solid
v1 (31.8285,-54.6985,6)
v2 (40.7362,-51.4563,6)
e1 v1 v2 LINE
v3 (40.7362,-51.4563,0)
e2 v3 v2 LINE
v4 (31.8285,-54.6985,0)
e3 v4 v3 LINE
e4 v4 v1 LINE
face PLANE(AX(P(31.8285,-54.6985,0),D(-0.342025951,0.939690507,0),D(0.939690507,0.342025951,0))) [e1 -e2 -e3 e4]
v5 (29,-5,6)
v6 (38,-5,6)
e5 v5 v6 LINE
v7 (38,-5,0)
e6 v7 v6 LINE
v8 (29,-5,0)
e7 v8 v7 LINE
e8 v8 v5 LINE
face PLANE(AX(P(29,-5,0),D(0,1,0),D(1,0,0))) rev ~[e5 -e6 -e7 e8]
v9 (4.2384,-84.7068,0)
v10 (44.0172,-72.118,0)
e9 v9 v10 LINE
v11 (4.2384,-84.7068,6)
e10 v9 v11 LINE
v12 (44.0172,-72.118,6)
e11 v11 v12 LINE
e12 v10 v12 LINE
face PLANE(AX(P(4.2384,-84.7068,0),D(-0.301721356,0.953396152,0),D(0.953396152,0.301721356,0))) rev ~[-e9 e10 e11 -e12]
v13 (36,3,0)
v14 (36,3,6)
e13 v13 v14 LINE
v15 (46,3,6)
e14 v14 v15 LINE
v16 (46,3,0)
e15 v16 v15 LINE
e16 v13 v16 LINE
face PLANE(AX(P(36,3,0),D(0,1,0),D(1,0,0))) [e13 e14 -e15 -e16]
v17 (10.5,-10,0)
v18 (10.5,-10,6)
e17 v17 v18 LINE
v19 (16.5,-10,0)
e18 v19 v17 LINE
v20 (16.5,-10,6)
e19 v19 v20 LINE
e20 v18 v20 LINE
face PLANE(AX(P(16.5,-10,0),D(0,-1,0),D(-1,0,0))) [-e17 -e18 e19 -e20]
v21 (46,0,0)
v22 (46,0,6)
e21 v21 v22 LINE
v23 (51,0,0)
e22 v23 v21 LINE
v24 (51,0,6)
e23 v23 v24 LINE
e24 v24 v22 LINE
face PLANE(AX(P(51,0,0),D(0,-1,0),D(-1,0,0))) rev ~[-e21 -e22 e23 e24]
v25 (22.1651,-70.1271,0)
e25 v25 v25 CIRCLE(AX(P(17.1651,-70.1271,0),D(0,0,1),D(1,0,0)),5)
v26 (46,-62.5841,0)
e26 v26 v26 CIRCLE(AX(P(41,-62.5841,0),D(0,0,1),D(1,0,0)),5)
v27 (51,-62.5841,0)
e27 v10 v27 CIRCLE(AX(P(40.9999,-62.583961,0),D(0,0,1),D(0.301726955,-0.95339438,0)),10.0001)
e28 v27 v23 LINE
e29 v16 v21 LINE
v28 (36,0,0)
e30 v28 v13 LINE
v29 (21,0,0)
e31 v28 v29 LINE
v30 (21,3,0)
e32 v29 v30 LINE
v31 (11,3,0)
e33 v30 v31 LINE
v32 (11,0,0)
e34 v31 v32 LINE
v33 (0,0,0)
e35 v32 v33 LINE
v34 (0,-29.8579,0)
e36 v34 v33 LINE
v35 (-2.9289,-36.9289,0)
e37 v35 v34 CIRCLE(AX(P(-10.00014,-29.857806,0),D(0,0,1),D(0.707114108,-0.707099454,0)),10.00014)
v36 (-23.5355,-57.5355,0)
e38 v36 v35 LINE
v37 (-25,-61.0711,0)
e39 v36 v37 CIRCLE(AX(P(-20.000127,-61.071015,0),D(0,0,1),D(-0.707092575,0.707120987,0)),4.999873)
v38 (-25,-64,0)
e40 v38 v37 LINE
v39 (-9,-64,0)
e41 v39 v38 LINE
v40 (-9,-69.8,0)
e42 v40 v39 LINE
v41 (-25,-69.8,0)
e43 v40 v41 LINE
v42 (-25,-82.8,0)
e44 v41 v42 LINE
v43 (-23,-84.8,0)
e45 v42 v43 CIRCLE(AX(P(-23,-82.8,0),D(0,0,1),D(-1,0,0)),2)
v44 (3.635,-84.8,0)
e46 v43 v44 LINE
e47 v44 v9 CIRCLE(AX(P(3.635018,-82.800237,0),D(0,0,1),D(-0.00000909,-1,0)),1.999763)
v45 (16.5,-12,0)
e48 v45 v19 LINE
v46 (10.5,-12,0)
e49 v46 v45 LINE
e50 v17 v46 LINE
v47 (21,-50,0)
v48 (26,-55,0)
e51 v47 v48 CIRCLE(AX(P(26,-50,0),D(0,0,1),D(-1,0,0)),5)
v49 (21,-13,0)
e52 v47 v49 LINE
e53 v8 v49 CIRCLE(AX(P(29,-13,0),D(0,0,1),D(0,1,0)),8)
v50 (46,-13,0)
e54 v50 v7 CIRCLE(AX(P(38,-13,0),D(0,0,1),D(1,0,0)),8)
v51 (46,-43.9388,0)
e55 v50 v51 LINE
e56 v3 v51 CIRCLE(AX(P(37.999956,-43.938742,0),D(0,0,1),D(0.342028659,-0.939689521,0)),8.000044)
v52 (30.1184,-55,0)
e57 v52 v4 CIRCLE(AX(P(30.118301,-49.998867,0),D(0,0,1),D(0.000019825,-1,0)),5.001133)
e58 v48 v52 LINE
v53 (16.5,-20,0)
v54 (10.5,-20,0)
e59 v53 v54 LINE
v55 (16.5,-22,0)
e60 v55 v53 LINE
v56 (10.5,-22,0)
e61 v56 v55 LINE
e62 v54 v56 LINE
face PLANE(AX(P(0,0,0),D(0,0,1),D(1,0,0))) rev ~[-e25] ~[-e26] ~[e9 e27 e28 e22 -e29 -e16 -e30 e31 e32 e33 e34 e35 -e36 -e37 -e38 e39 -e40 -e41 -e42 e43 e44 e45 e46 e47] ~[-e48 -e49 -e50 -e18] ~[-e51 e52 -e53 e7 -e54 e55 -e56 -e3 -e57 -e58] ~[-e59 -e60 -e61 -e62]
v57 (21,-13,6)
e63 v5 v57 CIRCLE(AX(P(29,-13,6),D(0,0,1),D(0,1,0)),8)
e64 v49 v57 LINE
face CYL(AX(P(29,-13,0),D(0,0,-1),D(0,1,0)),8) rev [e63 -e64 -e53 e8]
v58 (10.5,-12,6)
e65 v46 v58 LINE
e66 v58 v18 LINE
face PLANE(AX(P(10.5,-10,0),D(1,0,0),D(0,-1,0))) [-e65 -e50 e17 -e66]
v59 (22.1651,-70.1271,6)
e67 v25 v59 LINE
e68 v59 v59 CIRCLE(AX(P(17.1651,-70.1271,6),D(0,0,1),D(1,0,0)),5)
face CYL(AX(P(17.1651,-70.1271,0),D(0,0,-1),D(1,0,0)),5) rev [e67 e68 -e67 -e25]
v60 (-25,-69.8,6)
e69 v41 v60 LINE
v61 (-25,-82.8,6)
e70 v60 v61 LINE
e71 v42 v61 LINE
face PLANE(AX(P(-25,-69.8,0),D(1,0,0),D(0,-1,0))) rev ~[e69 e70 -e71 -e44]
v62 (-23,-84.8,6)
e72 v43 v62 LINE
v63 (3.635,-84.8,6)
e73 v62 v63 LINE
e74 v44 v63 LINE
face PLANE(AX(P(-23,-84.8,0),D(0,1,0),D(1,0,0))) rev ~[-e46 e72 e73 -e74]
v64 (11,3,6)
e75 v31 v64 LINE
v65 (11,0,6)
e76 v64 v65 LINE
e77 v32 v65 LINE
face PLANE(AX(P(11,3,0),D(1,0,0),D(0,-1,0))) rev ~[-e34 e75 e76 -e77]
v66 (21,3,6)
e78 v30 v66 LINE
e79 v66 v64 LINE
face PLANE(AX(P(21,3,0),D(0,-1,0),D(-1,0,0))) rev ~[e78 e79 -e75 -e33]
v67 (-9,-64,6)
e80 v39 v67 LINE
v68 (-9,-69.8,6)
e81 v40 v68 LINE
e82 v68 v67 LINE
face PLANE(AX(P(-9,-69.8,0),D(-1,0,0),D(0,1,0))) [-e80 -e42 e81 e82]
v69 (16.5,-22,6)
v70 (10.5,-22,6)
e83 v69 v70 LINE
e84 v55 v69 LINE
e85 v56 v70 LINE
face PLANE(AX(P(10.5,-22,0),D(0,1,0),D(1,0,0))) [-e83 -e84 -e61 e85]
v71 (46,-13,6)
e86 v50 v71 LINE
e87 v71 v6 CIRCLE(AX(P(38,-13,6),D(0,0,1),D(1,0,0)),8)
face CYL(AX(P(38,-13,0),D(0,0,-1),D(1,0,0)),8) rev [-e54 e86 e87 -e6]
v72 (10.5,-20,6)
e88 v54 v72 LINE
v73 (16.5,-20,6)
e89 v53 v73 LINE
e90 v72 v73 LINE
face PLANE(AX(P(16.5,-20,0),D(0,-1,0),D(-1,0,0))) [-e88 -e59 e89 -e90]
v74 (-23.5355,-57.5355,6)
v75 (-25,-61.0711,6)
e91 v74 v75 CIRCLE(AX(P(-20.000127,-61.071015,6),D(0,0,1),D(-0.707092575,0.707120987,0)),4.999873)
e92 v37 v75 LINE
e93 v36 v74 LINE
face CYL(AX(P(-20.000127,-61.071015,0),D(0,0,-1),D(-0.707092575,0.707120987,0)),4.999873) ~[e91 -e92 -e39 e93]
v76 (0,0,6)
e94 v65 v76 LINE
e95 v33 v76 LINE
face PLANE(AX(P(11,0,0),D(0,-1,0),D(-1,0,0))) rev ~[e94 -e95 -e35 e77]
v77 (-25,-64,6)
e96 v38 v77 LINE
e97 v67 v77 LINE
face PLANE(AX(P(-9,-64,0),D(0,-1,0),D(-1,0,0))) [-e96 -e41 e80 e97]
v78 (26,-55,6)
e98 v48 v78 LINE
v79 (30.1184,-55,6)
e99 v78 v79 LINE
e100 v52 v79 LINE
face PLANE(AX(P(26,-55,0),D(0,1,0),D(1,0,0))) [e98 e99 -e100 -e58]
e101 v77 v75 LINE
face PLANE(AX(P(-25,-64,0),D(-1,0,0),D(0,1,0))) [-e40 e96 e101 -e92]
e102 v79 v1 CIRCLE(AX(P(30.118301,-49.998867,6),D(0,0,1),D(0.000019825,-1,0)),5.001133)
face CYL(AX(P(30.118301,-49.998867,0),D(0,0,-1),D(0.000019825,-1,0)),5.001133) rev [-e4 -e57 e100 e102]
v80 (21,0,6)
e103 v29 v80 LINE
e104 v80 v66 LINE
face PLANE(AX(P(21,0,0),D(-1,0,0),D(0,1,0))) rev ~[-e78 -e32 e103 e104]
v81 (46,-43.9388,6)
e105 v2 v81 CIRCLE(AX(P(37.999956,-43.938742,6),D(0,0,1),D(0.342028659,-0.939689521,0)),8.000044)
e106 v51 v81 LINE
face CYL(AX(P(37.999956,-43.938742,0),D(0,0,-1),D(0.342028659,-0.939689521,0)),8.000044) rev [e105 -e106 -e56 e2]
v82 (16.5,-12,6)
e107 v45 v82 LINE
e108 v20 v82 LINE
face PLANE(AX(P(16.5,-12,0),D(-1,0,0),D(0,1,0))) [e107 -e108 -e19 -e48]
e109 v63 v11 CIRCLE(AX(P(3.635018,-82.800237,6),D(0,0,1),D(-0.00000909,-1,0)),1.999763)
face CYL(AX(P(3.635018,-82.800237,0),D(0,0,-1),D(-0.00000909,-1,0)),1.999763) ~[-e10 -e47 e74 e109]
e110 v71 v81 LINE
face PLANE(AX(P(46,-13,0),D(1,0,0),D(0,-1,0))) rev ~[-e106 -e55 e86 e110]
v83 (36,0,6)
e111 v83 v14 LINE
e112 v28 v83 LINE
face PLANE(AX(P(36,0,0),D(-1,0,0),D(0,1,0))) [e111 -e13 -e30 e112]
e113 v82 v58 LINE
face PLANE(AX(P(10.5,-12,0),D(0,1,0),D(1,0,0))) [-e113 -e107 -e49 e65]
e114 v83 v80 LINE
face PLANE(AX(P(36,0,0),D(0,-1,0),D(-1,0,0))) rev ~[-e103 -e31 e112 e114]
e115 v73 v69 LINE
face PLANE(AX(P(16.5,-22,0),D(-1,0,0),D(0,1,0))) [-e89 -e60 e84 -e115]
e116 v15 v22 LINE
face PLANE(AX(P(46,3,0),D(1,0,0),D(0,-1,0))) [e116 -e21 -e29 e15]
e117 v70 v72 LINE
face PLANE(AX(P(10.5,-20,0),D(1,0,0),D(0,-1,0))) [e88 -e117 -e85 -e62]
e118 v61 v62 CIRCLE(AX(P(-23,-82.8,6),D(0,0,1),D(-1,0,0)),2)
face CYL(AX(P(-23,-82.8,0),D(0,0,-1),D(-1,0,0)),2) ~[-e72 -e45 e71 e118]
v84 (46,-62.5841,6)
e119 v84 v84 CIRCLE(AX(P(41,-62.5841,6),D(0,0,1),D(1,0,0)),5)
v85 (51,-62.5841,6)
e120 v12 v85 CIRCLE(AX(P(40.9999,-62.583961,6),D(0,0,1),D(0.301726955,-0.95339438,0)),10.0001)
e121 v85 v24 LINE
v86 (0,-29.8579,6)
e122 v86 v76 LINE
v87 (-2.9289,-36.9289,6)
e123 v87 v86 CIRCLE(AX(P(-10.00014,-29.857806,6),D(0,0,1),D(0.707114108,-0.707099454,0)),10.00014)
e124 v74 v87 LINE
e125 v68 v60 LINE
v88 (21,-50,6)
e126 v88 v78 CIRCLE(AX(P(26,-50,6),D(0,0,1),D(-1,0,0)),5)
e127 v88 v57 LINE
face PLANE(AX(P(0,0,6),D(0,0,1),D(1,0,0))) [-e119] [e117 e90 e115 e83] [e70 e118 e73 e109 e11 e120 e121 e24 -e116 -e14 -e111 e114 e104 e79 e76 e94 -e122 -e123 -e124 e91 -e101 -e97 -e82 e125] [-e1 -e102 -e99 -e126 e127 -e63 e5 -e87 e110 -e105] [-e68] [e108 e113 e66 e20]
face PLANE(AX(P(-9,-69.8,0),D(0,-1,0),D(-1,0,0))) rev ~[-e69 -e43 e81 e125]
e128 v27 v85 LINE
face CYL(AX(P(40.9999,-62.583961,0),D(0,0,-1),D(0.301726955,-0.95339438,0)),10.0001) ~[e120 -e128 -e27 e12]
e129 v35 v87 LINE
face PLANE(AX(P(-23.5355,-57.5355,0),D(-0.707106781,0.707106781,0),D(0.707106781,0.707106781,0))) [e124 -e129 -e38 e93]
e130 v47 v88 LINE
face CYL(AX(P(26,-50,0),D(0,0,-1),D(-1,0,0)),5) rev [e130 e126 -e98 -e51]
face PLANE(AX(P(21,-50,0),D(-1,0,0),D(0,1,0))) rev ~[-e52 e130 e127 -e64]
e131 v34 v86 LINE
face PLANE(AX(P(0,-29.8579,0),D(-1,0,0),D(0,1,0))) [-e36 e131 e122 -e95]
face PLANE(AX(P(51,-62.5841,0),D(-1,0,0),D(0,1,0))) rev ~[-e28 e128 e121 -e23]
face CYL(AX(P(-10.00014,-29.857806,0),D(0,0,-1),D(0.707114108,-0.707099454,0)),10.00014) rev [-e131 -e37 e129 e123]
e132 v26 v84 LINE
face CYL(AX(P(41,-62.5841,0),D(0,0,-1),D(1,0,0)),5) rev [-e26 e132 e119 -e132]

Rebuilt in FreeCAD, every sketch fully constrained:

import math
import FreeCAD as App
import Part
import Sketcher

V = App.Vector
Q = App.Units.Quantity

doc = App.newDocument("Part")
body = doc.addObject("PartDesign::Body", "Body")

# Sketch on XY plane
sketch1 = body.newObject("Sketcher::SketchObject", "Sketch")
sketch1.AttachmentSupport = (doc.getObject("XY_Plane"), [""])
sketch1.MapMode = "FlatFace"
sketch1.addGeometry(Part.ArcOfCircle(Part.Circle(V(41, -62.6, 0), V(0, 0, 1), 10), math.radians(-72), math.radians(0)), False)
sketch1.addGeometry(Part.LineSegment(V(51, -62.6, 0), V(51, 0, 0)), False)
sketch1.addGeometry(Part.LineSegment(V(51, 0, 0), V(46, 0, 0)), False)
sketch1.addGeometry(Part.LineSegment(V(46, 0, 0), V(46, 3, 0)), False)
sketch1.addGeometry(Part.LineSegment(V(46, 3, 0), V(36, 3, 0)), False)
sketch1.addGeometry(Part.LineSegment(V(36, 3, 0), V(36, 0, 0)), False)
sketch1.addGeometry(Part.LineSegment(V(36, 0, 0), V(21, 0, 0)), False)
sketch1.addGeometry(Part.LineSegment(V(21, 0, 0), V(21, 3, 0)), False)
sketch1.addGeometry(Part.LineSegment(V(21, 3, 0), V(11, 3, 0)), False)
sketch1.addGeometry(Part.LineSegment(V(11, 3, 0), V(11, 0, 0)), False)
sketch1.addGeometry(Part.LineSegment(V(11, 0, 0), V(0, 0, 0)), False)
sketch1.addGeometry(Part.LineSegment(V(0, 0, 0), V(0, -29.9, 0)), False)
sketch1.addGeometry(Part.ArcOfCircle(Part.Circle(V(-10, -29.9, 0), V(0, 0, 1), 10), math.radians(-45), math.radians(0)), False)
sketch1.addGeometry(Part.LineSegment(V(-2.9, -36.9, 0), V(-23.5, -57.5, 0)), False)
sketch1.addGeometry(Part.ArcOfCircle(Part.Circle(V(-20, -61.1, 0), V(0, 0, 1), 5), math.radians(135), math.radians(180)), False)
sketch1.addGeometry(Part.LineSegment(V(-25, -61.1, 0), V(-25, -64, 0)), False)
sketch1.addGeometry(Part.LineSegment(V(-25, -64, 0), V(-9, -64, 0)), False)
sketch1.addGeometry(Part.LineSegment(V(-9, -64, 0), V(-9, -69.8, 0)), False)
sketch1.addGeometry(Part.LineSegment(V(-9, -69.8, 0), V(-25, -69.8, 0)), False)
sketch1.addGeometry(Part.LineSegment(V(-25, -69.8, 0), V(-25, -82.8, 0)), False)
sketch1.addGeometry(Part.ArcOfCircle(Part.Circle(V(-23, -82.8, 0), V(0, 0, 1), 2), math.radians(180), math.radians(270)), False)
sketch1.addGeometry(Part.LineSegment(V(-23, -84.8, 0), V(3.6, -84.8, 0)), False)
sketch1.addGeometry(Part.ArcOfCircle(Part.Circle(V(3.6, -82.8, 0), V(0, 0, 1), 2), math.radians(-90), math.radians(-72.44)), False)
sketch1.addGeometry(Part.LineSegment(V(4.2, -84.7, 0), V(44, -72.1, 0)), False)
sketch1.addGeometry(Part.Circle(V(17.2, -70.1, 0), V(0, 0, 1), 5), False)
sketch1.addGeometry(Part.Circle(V(41, -62.6, 0), V(0, 0, 1), 5), False)
sketch1.addGeometry(Part.ArcOfCircle(Part.Circle(V(29, -13, 0), V(0, 0, 1), 8), math.radians(90), math.radians(180)), False)
sketch1.addGeometry(Part.LineSegment(V(29, -5, 0), V(38, -5, 0)), False)
sketch1.addGeometry(Part.ArcOfCircle(Part.Circle(V(38, -13, 0), V(0, 0, 1), 8), math.radians(0), math.radians(90)), False)
sketch1.addGeometry(Part.LineSegment(V(46, -13, 0), V(46, -43.9, 0)), False)
sketch1.addGeometry(Part.ArcOfCircle(Part.Circle(V(38, -43.9, 0), V(0, 0, 1), 8), math.radians(-70), math.radians(0)), False)
sketch1.addGeometry(Part.LineSegment(V(40.7, -51.5, 0), V(31.8, -54.7, 0)), False)
sketch1.addGeometry(Part.ArcOfCircle(Part.Circle(V(30.1, -50, 0), V(0, 0, 1), 5), math.radians(-90), math.radians(-70)), False)
sketch1.addGeometry(Part.LineSegment(V(30.1, -55, 0), V(26, -55, 0)), False)
sketch1.addGeometry(Part.ArcOfCircle(Part.Circle(V(26, -50, 0), V(0, 0, 1), 5), math.radians(180), math.radians(270)), False)
sketch1.addGeometry(Part.LineSegment(V(21, -50, 0), V(21, -13, 0)), False)
sketch1.addConstraint(Sketcher.Constraint("Tangent", 0, 2, 1, 1))
sketch1.addConstraint(Sketcher.Constraint("Coincident", 1, 2, 2, 1))
sketch1.addConstraint(Sketcher.Constraint("Coincident", 2, 2, 3, 1))
sketch1.addConstraint(Sketcher.Constraint("Coincident", 3, 2, 4, 1))
sketch1.addConstraint(Sketcher.Constraint("Coincident", 4, 2, 5, 1))
sketch1.addConstraint(Sketcher.Constraint("Coincident", 5, 2, 6, 1))
sketch1.addConstraint(Sketcher.Constraint("Coincident", 6, 2, 7, 1))
sketch1.addConstraint(Sketcher.Constraint("Coincident", 7, 2, 8, 1))
sketch1.addConstraint(Sketcher.Constraint("Coincident", 8, 2, 9, 1))
sketch1.addConstraint(Sketcher.Constraint("Coincident", 9, 2, 10, 1))
sketch1.addConstraint(Sketcher.Constraint("Coincident", 10, 2, 11, 1))
sketch1.addConstraint(Sketcher.Constraint("Tangent", 11, 2, 12, 2))
sketch1.addConstraint(Sketcher.Constraint("Tangent", 12, 1, 13, 1))
sketch1.addConstraint(Sketcher.Constraint("Tangent", 13, 2, 14, 1))
sketch1.addConstraint(Sketcher.Constraint("Tangent", 14, 2, 15, 1))
sketch1.addConstraint(Sketcher.Constraint("Coincident", 15, 2, 16, 1))
sketch1.addConstraint(Sketcher.Constraint("Coincident", 16, 2, 17, 1))
sketch1.addConstraint(Sketcher.Constraint("Coincident", 17, 2, 18, 1))
sketch1.addConstraint(Sketcher.Constraint("Coincident", 18, 2, 19, 1))
sketch1.addConstraint(Sketcher.Constraint("Tangent", 19, 2, 20, 1))
sketch1.addConstraint(Sketcher.Constraint("Tangent", 20, 2, 21, 1))
sketch1.addConstraint(Sketcher.Constraint("Tangent", 21, 2, 22, 1))
sketch1.addConstraint(Sketcher.Constraint("Tangent", 22, 2, 23, 1))
sketch1.addConstraint(Sketcher.Constraint("Tangent", 23, 2, 0, 1))
sketch1.addConstraint(Sketcher.Constraint("Tangent", 26, 1, 27, 1))
sketch1.addConstraint(Sketcher.Constraint("Tangent", 27, 2, 28, 2))
sketch1.addConstraint(Sketcher.Constraint("Tangent", 28, 1, 29, 1))
sketch1.addConstraint(Sketcher.Constraint("Tangent", 29, 2, 30, 2))
sketch1.addConstraint(Sketcher.Constraint("Tangent", 30, 1, 31, 1))
sketch1.addConstraint(Sketcher.Constraint("Tangent", 31, 2, 32, 2))
sketch1.addConstraint(Sketcher.Constraint("Tangent", 32, 1, 33, 1))
sketch1.addConstraint(Sketcher.Constraint("Tangent", 33, 2, 34, 2))
sketch1.addConstraint(Sketcher.Constraint("Tangent", 34, 1, 35, 1))
sketch1.addConstraint(Sketcher.Constraint("Tangent", 35, 2, 26, 2))
sketch1.addConstraint(Sketcher.Constraint("Vertical", 1))
sketch1.addConstraint(Sketcher.Constraint("Horizontal", 2))
sketch1.addConstraint(Sketcher.Constraint("Vertical", 3))
sketch1.addConstraint(Sketcher.Constraint("Horizontal", 4))
sketch1.addConstraint(Sketcher.Constraint("Vertical", 5))
sketch1.addConstraint(Sketcher.Constraint("Horizontal", 6))
sketch1.addConstraint(Sketcher.Constraint("Vertical", 7))
sketch1.addConstraint(Sketcher.Constraint("Horizontal", 8))
sketch1.addConstraint(Sketcher.Constraint("Vertical", 9))
sketch1.addConstraint(Sketcher.Constraint("Horizontal", 10))
sketch1.addConstraint(Sketcher.Constraint("Vertical", 11))
sketch1.addConstraint(Sketcher.Constraint("Vertical", 15))
sketch1.addConstraint(Sketcher.Constraint("Horizontal", 16))
sketch1.addConstraint(Sketcher.Constraint("Vertical", 17))
sketch1.addConstraint(Sketcher.Constraint("Horizontal", 18))
sketch1.addConstraint(Sketcher.Constraint("Vertical", 19))
sketch1.addConstraint(Sketcher.Constraint("Horizontal", 21))
sketch1.addConstraint(Sketcher.Constraint("Horizontal", 27))
sketch1.addConstraint(Sketcher.Constraint("Vertical", 29))
sketch1.addConstraint(Sketcher.Constraint("Horizontal", 33))
sketch1.addConstraint(Sketcher.Constraint("Vertical", 35))
sketch1.addConstraint(Sketcher.Constraint("Coincident", 10, 2, -1, 1))
sketch1.addConstraint(Sketcher.Constraint("Coincident", 25, 3, 0, 3))
sketch1.addConstraint(Sketcher.Constraint("Equal", 0, 12))
sketch1.addConstraint(Sketcher.Constraint("Equal", 20, 22))
sketch1.addConstraint(Sketcher.Constraint("Equal", 14, 24))
sketch1.addConstraint(Sketcher.Constraint("Equal", 24, 25))
sketch1.addConstraint(Sketcher.Constraint("Equal", 26, 28))
sketch1.addConstraint(Sketcher.Constraint("Equal", 28, 30))
sketch1.addConstraint(Sketcher.Constraint("Equal", 25, 34))
sketch1.addConstraint(Sketcher.Constraint("PointOnObject", 1, 2, -1))
sketch1.addConstraint(Sketcher.Constraint("PointOnObject", 5, 2, -1))
sketch1.addConstraint(Sketcher.Constraint("Horizontal", 4, 2, 7, 2))
sketch1.addConstraint(Sketcher.Constraint("Vertical", 15, 2, 18, 2))
sketch1.addConstraint(Sketcher.Constraint("Vertical", 3, 2, 28, 1))
sketch1.addConstraint(Sketcher.Constraint("Vertical", 7, 2, 34, 1))
sketch1.addConstraint(Sketcher.Constraint("Equal", 4, 8))
sketch1.addConstraint(Sketcher.Constraint("Diameter", 24, 10.0))
sketch1.addConstraint(Sketcher.Constraint("Radius", 0, 10.0))
sketch1.addConstraint(Sketcher.Constraint("Radius", 20, 2.0))
sketch1.addConstraint(Sketcher.Constraint("Radius", 26, 8.0))
sketch1.addConstraint(Sketcher.Constraint("DistanceX", 2, 2, 2, 1, 5.0))
sketch1.addConstraint(Sketcher.Constraint("DistanceX", 4, 2, 4, 1, 10.0))
sketch1.addConstraint(Sketcher.Constraint("DistanceX", 6, 2, 6, 1, 15.0))
sketch1.addConstraint(Sketcher.Constraint("DistanceX", 16, 1, 16, 2, 16.0))
sketch1.addConstraint(Sketcher.Constraint("DistanceY", 3, 1, 3, 2, 3.0))
sketch1.addConstraint(Sketcher.Constraint("Angle", 13, Q("-135 deg")))
sketch1.addConstraint(Sketcher.Constraint("Angle", 31, Q("-159.9996 deg")))
sketch1.addConstraint(Sketcher.Constraint("DistanceY", 17, 2, 17, 1, 5.8))
sketch1.addConstraint(Sketcher.Constraint("DistanceX", 14, 2, -1, 1, 25.0))
sketch1.addConstraint(Sketcher.Constraint("DistanceY", 15, 2, -1, 1, 64.0))
sketch1.addConstraint(Sketcher.Constraint("DistanceY", 26, 1, -1, 1, 5.0))
sketch1.addConstraint(Sketcher.Constraint("DistanceY", 32, 1, -1, 1, 55.0))
sketch1.addConstraint(Sketcher.Constraint("DistanceX", 20, 3, 0, 3, 64.0))
sketch1.addConstraint(Sketcher.Constraint("DistanceY", 20, 2, 18, 2, 15.0))
sketch1.addConstraint(Sketcher.Constraint("Angle", 23, Q("17.561 deg")))
sketch1.addConstraint(Sketcher.Constraint("Radius", 32, 5.0011))
sketch1.addConstraint(Sketcher.Constraint("DistanceX", 21, 1, 21, 2, 26.635))
sketch1.addConstraint(Sketcher.Constraint("DistanceY", 11, 2, 11, 1, 29.858))
sketch1.addConstraint(Sketcher.Constraint("DistanceX", 22, 3, 24, 3, 13.53))
sketch1.addConstraint(Sketcher.Constraint("DistanceY", 32, 3, 30, 3, 6.06))
sketch1.addConstraint(Sketcher.Constraint("DistanceY", 24, 3, -1, 1, 70.127))
pad1 = body.newObject("PartDesign::Pad", "Pad")
pad1.Profile = sketch1
pad1.Length = 6

# Sketch on XY plane
sketch2 = body.newObject("Sketcher::SketchObject", "Sketch001")
sketch2.AttachmentSupport = (doc.getObject("XY_Plane"), [""])
sketch2.MapMode = "FlatFace"
sketch2.addGeometry(Part.LineSegment(V(16.5, -12, 0), V(10.5, -12, 0)), False)
sketch2.addGeometry(Part.LineSegment(V(10.5, -12, 0), V(10.5, -10, 0)), False)
sketch2.addGeometry(Part.LineSegment(V(10.5, -10, 0), V(16.5, -10, 0)), False)
sketch2.addGeometry(Part.LineSegment(V(16.5, -10, 0), V(16.5, -12, 0)), False)
sketch2.addGeometry(Part.LineSegment(V(16.5, -22, 0), V(10.5, -22, 0)), False)
sketch2.addGeometry(Part.LineSegment(V(10.5, -22, 0), V(10.5, -20, 0)), False)
sketch2.addGeometry(Part.LineSegment(V(10.5, -20, 0), V(16.5, -20, 0)), False)
sketch2.addGeometry(Part.LineSegment(V(16.5, -20, 0), V(16.5, -22, 0)), False)
sketch2.addConstraint(Sketcher.Constraint("Coincident", 0, 2, 1, 1))
sketch2.addConstraint(Sketcher.Constraint("Coincident", 1, 2, 2, 1))
sketch2.addConstraint(Sketcher.Constraint("Coincident", 2, 2, 3, 1))
sketch2.addConstraint(Sketcher.Constraint("Coincident", 3, 2, 0, 1))
sketch2.addConstraint(Sketcher.Constraint("Coincident", 4, 2, 5, 1))
sketch2.addConstraint(Sketcher.Constraint("Coincident", 5, 2, 6, 1))
sketch2.addConstraint(Sketcher.Constraint("Coincident", 6, 2, 7, 1))
sketch2.addConstraint(Sketcher.Constraint("Coincident", 7, 2, 4, 1))
sketch2.addConstraint(Sketcher.Constraint("Horizontal", 0))
sketch2.addConstraint(Sketcher.Constraint("Vertical", 1))
sketch2.addConstraint(Sketcher.Constraint("Horizontal", 2))
sketch2.addConstraint(Sketcher.Constraint("Vertical", 3))
sketch2.addConstraint(Sketcher.Constraint("Horizontal", 4))
sketch2.addConstraint(Sketcher.Constraint("Vertical", 5))
sketch2.addConstraint(Sketcher.Constraint("Horizontal", 6))
sketch2.addConstraint(Sketcher.Constraint("Vertical", 7))
sketch2.addConstraint(Sketcher.Constraint("Vertical", 1, 2, 4, 2))
sketch2.addConstraint(Sketcher.Constraint("Vertical", 3, 2, 6, 2))
sketch2.addConstraint(Sketcher.Constraint("Equal", 3, 5))
sketch2.addConstraint(Sketcher.Constraint("DistanceX", 0, 2, 0, 1, 6.0))
sketch2.addConstraint(Sketcher.Constraint("DistanceY", 1, 1, 1, 2, 2.0))
sketch2.addConstraint(Sketcher.Constraint("DistanceY", 5, 2, 0, 2, 8.0))
sketch2.addConstraint(Sketcher.Constraint("DistanceY", 0, 2, -1, 1, 12.0))
sketch2.addConstraint(Sketcher.Constraint("DistanceX", -1, 1, 0, 2, 10.5))
pocket1 = body.newObject("PartDesign::Pocket", "Pocket")
pocket1.Profile = sketch2
pocket1.Type = "ThroughAll"
pocket1.Reversed = True

doc.recompute()
